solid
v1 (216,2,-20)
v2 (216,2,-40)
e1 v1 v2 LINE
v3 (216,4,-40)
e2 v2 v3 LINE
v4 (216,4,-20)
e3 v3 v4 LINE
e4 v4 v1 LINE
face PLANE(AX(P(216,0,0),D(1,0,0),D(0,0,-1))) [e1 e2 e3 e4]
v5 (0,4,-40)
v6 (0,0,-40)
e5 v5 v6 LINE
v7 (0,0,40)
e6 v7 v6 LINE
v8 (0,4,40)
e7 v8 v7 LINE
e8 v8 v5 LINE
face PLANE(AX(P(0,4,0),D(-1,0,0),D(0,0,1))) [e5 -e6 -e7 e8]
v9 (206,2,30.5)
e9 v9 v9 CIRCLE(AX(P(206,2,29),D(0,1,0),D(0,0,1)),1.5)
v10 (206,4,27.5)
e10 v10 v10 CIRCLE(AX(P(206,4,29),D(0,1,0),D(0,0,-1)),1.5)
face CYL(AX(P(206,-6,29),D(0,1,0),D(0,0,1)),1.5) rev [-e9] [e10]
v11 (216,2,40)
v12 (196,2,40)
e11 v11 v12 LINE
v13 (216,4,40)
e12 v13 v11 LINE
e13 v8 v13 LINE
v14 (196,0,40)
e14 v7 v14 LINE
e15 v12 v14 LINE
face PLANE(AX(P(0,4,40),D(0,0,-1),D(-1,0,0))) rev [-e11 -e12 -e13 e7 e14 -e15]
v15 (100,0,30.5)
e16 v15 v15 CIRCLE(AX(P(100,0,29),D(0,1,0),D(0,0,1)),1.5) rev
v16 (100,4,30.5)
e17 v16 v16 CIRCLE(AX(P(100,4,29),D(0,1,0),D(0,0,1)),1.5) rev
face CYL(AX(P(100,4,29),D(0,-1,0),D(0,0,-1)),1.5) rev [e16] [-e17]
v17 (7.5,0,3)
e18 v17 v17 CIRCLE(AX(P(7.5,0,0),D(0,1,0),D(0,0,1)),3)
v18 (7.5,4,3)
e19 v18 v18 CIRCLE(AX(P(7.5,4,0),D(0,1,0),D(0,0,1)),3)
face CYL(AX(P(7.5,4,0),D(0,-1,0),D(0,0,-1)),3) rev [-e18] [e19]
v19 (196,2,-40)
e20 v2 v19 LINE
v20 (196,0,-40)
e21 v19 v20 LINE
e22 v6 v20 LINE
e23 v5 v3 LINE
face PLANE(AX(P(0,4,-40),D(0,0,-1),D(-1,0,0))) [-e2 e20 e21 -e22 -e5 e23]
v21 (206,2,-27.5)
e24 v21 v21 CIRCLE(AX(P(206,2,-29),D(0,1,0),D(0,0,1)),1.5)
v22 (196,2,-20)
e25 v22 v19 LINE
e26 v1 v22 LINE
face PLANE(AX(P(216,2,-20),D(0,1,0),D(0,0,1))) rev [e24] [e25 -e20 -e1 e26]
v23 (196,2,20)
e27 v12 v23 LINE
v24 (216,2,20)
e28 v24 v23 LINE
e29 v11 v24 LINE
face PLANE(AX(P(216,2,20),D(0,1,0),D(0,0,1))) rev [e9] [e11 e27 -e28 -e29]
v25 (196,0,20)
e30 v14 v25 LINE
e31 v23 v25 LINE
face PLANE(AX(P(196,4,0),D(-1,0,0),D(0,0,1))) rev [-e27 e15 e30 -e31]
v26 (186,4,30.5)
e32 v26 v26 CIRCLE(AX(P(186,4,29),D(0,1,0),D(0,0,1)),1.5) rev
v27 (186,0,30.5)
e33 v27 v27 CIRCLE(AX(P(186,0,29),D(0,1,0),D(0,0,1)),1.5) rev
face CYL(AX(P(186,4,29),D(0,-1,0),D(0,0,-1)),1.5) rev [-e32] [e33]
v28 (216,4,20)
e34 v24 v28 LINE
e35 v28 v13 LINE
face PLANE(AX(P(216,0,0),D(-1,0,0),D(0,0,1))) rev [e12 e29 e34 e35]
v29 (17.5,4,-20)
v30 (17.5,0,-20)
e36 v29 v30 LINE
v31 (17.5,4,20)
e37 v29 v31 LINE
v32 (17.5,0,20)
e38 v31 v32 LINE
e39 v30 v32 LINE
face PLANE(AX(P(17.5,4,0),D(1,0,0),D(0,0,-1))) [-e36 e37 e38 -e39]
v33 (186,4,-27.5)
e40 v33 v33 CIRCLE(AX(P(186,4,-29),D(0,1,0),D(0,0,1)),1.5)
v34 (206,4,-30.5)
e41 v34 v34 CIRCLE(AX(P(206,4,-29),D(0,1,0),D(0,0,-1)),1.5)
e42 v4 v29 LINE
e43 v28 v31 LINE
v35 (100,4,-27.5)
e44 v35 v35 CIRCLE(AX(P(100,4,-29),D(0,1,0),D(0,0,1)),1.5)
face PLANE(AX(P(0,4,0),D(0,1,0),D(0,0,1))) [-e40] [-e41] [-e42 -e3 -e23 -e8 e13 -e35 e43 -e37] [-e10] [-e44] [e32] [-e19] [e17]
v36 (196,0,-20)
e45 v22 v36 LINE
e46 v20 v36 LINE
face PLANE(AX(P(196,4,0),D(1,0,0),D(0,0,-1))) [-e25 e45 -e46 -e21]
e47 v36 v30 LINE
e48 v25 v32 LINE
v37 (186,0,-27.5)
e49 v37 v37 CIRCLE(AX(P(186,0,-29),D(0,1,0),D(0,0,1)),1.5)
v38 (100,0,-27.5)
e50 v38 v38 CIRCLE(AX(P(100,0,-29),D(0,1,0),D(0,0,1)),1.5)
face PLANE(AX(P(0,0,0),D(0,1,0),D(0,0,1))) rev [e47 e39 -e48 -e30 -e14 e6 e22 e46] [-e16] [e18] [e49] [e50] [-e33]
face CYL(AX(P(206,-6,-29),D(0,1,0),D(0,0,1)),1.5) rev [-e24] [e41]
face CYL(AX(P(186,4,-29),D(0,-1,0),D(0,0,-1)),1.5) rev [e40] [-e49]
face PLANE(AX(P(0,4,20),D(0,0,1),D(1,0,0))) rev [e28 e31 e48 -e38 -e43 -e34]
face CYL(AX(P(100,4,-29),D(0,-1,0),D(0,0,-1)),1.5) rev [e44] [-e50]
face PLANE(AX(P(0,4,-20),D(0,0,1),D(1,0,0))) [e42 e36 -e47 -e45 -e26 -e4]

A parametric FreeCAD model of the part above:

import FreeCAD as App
import Part
import Sketcher

V = App.Vector

doc = App.newDocument("Part")
body = doc.addObject("PartDesign::Body", "Body")

sketch1 = body.newObject("Sketcher::SketchObject", "Sketch")
sketch1.AttachmentSupport = (doc.getObject("XZ_Plane"), [""])
sketch1.MapMode = "FlatFace"
sketch1.addGeometry(Part.LineSegment(V(0, 40, 0), V(196, 40, 0)), False)
sketch1.addGeometry(Part.LineSegment(V(196, 40, 0), V(196, 20, 0)), False)
sketch1.addGeometry(Part.LineSegment(V(196, 20, 0), V(17.5, 20, 0)), False)
sketch1.addGeometry(Part.LineSegment(V(17.5, 20, 0), V(17.5, -20, 0)), False)
sketch1.addGeometry(Part.LineSegment(V(17.5, -20, 0), V(196, -20, 0)), False)
sketch1.addGeometry(Part.LineSegment(V(196, -20, 0), V(196, -40, 0)), False)
sketch1.addGeometry(Part.LineSegment(V(196, -40, 0), V(0, -40, 0)), False)
sketch1.addGeometry(Part.LineSegment(V(0, -40, 0), V(0, 40, 0)), False)
sketch1.addGeometry(Part.Circle(V(7.5, 0, 0), V(0, 0, 1), 3), False)
sketch1.addGeometry(Part.Circle(V(100, 29, 0), V(0, 0, 1), 1.5), False)
sketch1.addGeometry(Part.Circle(V(186, 29, 0), V(0, 0, 1), 1.5), False)
sketch1.addGeometry(Part.Circle(V(186, -29, 0), V(0, 0, 1), 1.5), False)
sketch1.addGeometry(Part.Circle(V(100, -29, 0), V(0, 0, 1), 1.5), False)
sketch1.addConstraint(Sketcher.Constraint("Coincident", 0, 2, 1, 1))
sketch1.addConstraint(Sketcher.Constraint("Coincident", 1, 2, 2, 1))
sketch1.addConstraint(Sketcher.Constraint("Coincident", 2, 2, 3, 1))
sketch1.addConstraint(Sketcher.Constraint("Coincident", 3, 2, 4, 1))
sketch1.addConstraint(Sketcher.Constraint("Coincident", 4, 2, 5, 1))
sketch1.addConstraint(Sketcher.Constraint("Coincident", 5, 2, 6, 1))
sketch1.addConstraint(Sketcher.Constraint("Coincident", 6, 2, 7, 1))
sketch1.addConstraint(Sketcher.Constraint("Coincident", 7, 2, 0, 1))
sketch1.addConstraint(Sketcher.Constraint("Horizontal", 0))
sketch1.addConstraint(Sketcher.Constraint("Vertical", 1))
sketch1.addConstraint(Sketcher.Constraint("Horizontal", 2))
sketch1.addConstraint(Sketcher.Constraint("Vertical", 3))
sketch1.addConstraint(Sketcher.Constraint("Horizontal", 4))
sketch1.addConstraint(Sketcher.Constraint("Vertical", 5))
sketch1.addConstraint(Sketcher.Constraint("Horizontal", 6))
sketch1.addConstraint(Sketcher.Constraint("Vertical", 7))
sketch1.addConstraint(Sketcher.Constraint("Equal", 9, 10))
sketch1.addConstraint(Sketcher.Constraint("Equal", 10, 11))
sketch1.addConstraint(Sketcher.Constraint("Equal", 11, 12))
sketch1.addConstraint(Sketcher.Constraint("Symmetric", 6, 2, 7, 2, -1, 1))
sketch1.addConstraint(Sketcher.Constraint("Symmetric", 10, 3, 11, 3, -1))
sketch1.addConstraint(Sketcher.Constraint("Symmetric", 9, 3, 12, 3, -1))
sketch1.addConstraint(Sketcher.Constraint("Symmetric", 1, 2, 4, 2, -1))
sketch1.addConstraint(Sketcher.Constraint("PointOnObject", 8, 3, -1))
sketch1.addConstraint(Sketcher.Constraint("Horizontal", 9, 3, 10, 3))
sketch1.addConstraint(Sketcher.Constraint("Diameter", 8, 6.0))
sketch1.addConstraint(Sketcher.Constraint("Diameter", 9, 3.0))
sketch1.addConstraint(Sketcher.Constraint("DistanceX", 0, 1, 0, 2, 196.0))
sketch1.addConstraint(Sketcher.Constraint("DistanceY", 1, 2, 1, 1, 20.0))
sketch1.addConstraint(Sketcher.Constraint("DistanceY", 3, 2, 3, 1, 40.0))
sketch1.addConstraint(Sketcher.Constraint("DistanceX", 2, 2, 2, 1, 178.5))
sketch1.addConstraint(Sketcher.Constraint("DistanceX", -1, 1, 9, 3, 100.0))
sketch1.addConstraint(Sketcher.Constraint("DistanceY", -1, 1, 9, 3, 29.0))
sketch1.addConstraint(Sketcher.Constraint("DistanceX", -1, 1, 10, 3, 186.0))
sketch1.addConstraint(Sketcher.Constraint("DistanceX", 8, 3, 2, 2, 10.0))
pad1 = body.newObject("PartDesign::Pad", "Pad")
pad1.Profile = sketch1
pad1.Length = 4
pad1.Reversed = True

sketch2 = body.newObject("Sketcher::SketchObject", "Sketch001")
sketch2.AttachmentSupport = (doc.getObject("YZ_Plane"), [""])
sketch2.MapMode = "FlatFace"
sketch2.AttachmentOffset = App.Placement(V(0, 0, 196), App.Rotation())
sketch2.addGeometry(Part.LineSegment(V(4, -20, 0), V(2, -20, 0)), False)
sketch2.addGeometry(Part.LineSegment(V(2, -20, 0), V(2, -40, 0)), False)
sketch2.addGeometry(Part.LineSegment(V(2, -40, 0), V(4, -40, 0)), False)
sketch2.addGeometry(Part.LineSegment(V(4, -40, 0), V(4, -20, 0)), False)
sketch2.addGeometry(Part.LineSegment(V(4, 40, 0), V(2, 40, 0)), False)
sketch2.addGeometry(Part.LineSegment(V(2, 40, 0), V(2, 20, 0)), False)
sketch2.addGeometry(Part.LineSegment(V(2, 20, 0), V(4, 20, 0)), False)
sketch2.addGeometry(Part.LineSegment(V(4, 20, 0), V(4, 40, 0)), False)
sketch2.addConstraint(Sketcher.Constraint("Coincident", 0, 2, 1, 1))
sketch2.addConstraint(Sketcher.Constraint("Coincident", 1, 2, 2, 1))
sketch2.addConstraint(Sketcher.Constraint("Coincident", 2, 2, 3, 1))
sketch2.addConstraint(Sketcher.Constraint("Coincident", 3, 2, 0, 1))
sketch2.addConstraint(Sketcher.Constraint("Coincident", 4, 2, 5, 1))
sketch2.addConstraint(Sketcher.Constraint("Coincident", 5, 2, 6, 1))
sketch2.addConstraint(Sketcher.Constraint("Coincident", 6, 2, 7, 1))
sketch2.addConstraint(Sketcher.Constraint("Coincident", 7, 2, 4, 1))
sketch2.addConstraint(Sketcher.Constraint("Horizontal", 0))
sketch2.addConstraint(Sketcher.Constraint("Vertical", 1))
sketch2.addConstraint(Sketcher.Constraint("Horizontal", 2))
sketch2.addConstraint(Sketcher.Constraint("Vertical", 3))
sketch2.addConstraint(Sketcher.Constraint("Horizontal", 4))
sketch2.addConstraint(Sketcher.Constraint("Vertical", 5))
sketch2.addConstraint(Sketcher.Constraint("Horizontal", 6))
sketch2.addConstraint(Sketcher.Constraint("Vertical", 7))
sketch2.addConstraint(Sketcher.Constraint("Symmetric", 1, 2, 4, 2, -1))
sketch2.addConstraint(Sketcher.Constraint("Symmetric", 3, 2, 6, 2, -1))
sketch2.addConstraint(Sketcher.Constraint("DistanceX", 0, 2, 0, 1, 2.0))
sketch2.addConstraint(Sketcher.Constraint("DistanceY", 1, 2, 1, 1, 20.0))
sketch2.addConstraint(Sketcher.Constraint("DistanceX", -1, 1, 0, 2, 2.0))
sketch2.addConstraint(Sketcher.Constraint("DistanceY", 0, 2, -1, 1, 20.0))
pad2 = body.newObject("PartDesign::Pad", "Pad001")
pad2.Profile = sketch2
pad2.Length = 20

sketch3 = body.newObject("Sketcher::SketchObject", "Sketch002")
sketch3.AttachmentSupport = (doc.getObject("XZ_Plane"), [""])
sketch3.MapMode = "FlatFace"
sketch3.AttachmentOffset = App.Placement(V(0, 0, 6), App.Rotation())
sketch3.addGeometry(Part.Circle(V(186, -29, 0), V(0, 0, 1), 1.5), False)
sketch3.addGeometry(Part.Circle(V(186, 29, 0), V(0, 0, 1), 1.5), False)
sketch3.addGeometry(Part.Circle(V(206, -29, 0), V(0, 0, 1), 1.5), False)
sketch3.addGeometry(Part.Circle(V(206, 29, 0), V(0, 0, 1), 1.5), False)
sketch3.addConstraint(Sketcher.Constraint("Equal", 0, 1))
sketch3.addConstraint(Sketcher.Constraint("Equal", 1, 2))
sketch3.addConstraint(Sketcher.Constraint("Equal", 2, 3))
sketch3.addConstraint(Sketcher.Constraint("Symmetric", 0, 3, 1, 3, -1))
sketch3.addConstraint(Sketcher.Constraint("Symmetric", 2, 3, 3, 3, -1))
sketch3.addConstraint(Sketcher.Constraint("Horizontal", 0, 3, 2, 3))
sketch3.addConstraint(Sketcher.Constraint("Diameter", 0, 3.0))
sketch3.addConstraint(Sketcher.Constraint("DistanceX", -1, 1, 0, 3, 186.0))
sketch3.addConstraint(Sketcher.Constraint("DistanceY", 0, 3, -1, 1, 29.0))
sketch3.addConstraint(Sketcher.Constraint("DistanceX", -1, 1, 2, 3, 206.0))
pocket1 = body.newObject("PartDesign::Pocket", "Pocket")
pocket1.Profile = sketch3
pocket1.Length = 10

doc.recompute()
